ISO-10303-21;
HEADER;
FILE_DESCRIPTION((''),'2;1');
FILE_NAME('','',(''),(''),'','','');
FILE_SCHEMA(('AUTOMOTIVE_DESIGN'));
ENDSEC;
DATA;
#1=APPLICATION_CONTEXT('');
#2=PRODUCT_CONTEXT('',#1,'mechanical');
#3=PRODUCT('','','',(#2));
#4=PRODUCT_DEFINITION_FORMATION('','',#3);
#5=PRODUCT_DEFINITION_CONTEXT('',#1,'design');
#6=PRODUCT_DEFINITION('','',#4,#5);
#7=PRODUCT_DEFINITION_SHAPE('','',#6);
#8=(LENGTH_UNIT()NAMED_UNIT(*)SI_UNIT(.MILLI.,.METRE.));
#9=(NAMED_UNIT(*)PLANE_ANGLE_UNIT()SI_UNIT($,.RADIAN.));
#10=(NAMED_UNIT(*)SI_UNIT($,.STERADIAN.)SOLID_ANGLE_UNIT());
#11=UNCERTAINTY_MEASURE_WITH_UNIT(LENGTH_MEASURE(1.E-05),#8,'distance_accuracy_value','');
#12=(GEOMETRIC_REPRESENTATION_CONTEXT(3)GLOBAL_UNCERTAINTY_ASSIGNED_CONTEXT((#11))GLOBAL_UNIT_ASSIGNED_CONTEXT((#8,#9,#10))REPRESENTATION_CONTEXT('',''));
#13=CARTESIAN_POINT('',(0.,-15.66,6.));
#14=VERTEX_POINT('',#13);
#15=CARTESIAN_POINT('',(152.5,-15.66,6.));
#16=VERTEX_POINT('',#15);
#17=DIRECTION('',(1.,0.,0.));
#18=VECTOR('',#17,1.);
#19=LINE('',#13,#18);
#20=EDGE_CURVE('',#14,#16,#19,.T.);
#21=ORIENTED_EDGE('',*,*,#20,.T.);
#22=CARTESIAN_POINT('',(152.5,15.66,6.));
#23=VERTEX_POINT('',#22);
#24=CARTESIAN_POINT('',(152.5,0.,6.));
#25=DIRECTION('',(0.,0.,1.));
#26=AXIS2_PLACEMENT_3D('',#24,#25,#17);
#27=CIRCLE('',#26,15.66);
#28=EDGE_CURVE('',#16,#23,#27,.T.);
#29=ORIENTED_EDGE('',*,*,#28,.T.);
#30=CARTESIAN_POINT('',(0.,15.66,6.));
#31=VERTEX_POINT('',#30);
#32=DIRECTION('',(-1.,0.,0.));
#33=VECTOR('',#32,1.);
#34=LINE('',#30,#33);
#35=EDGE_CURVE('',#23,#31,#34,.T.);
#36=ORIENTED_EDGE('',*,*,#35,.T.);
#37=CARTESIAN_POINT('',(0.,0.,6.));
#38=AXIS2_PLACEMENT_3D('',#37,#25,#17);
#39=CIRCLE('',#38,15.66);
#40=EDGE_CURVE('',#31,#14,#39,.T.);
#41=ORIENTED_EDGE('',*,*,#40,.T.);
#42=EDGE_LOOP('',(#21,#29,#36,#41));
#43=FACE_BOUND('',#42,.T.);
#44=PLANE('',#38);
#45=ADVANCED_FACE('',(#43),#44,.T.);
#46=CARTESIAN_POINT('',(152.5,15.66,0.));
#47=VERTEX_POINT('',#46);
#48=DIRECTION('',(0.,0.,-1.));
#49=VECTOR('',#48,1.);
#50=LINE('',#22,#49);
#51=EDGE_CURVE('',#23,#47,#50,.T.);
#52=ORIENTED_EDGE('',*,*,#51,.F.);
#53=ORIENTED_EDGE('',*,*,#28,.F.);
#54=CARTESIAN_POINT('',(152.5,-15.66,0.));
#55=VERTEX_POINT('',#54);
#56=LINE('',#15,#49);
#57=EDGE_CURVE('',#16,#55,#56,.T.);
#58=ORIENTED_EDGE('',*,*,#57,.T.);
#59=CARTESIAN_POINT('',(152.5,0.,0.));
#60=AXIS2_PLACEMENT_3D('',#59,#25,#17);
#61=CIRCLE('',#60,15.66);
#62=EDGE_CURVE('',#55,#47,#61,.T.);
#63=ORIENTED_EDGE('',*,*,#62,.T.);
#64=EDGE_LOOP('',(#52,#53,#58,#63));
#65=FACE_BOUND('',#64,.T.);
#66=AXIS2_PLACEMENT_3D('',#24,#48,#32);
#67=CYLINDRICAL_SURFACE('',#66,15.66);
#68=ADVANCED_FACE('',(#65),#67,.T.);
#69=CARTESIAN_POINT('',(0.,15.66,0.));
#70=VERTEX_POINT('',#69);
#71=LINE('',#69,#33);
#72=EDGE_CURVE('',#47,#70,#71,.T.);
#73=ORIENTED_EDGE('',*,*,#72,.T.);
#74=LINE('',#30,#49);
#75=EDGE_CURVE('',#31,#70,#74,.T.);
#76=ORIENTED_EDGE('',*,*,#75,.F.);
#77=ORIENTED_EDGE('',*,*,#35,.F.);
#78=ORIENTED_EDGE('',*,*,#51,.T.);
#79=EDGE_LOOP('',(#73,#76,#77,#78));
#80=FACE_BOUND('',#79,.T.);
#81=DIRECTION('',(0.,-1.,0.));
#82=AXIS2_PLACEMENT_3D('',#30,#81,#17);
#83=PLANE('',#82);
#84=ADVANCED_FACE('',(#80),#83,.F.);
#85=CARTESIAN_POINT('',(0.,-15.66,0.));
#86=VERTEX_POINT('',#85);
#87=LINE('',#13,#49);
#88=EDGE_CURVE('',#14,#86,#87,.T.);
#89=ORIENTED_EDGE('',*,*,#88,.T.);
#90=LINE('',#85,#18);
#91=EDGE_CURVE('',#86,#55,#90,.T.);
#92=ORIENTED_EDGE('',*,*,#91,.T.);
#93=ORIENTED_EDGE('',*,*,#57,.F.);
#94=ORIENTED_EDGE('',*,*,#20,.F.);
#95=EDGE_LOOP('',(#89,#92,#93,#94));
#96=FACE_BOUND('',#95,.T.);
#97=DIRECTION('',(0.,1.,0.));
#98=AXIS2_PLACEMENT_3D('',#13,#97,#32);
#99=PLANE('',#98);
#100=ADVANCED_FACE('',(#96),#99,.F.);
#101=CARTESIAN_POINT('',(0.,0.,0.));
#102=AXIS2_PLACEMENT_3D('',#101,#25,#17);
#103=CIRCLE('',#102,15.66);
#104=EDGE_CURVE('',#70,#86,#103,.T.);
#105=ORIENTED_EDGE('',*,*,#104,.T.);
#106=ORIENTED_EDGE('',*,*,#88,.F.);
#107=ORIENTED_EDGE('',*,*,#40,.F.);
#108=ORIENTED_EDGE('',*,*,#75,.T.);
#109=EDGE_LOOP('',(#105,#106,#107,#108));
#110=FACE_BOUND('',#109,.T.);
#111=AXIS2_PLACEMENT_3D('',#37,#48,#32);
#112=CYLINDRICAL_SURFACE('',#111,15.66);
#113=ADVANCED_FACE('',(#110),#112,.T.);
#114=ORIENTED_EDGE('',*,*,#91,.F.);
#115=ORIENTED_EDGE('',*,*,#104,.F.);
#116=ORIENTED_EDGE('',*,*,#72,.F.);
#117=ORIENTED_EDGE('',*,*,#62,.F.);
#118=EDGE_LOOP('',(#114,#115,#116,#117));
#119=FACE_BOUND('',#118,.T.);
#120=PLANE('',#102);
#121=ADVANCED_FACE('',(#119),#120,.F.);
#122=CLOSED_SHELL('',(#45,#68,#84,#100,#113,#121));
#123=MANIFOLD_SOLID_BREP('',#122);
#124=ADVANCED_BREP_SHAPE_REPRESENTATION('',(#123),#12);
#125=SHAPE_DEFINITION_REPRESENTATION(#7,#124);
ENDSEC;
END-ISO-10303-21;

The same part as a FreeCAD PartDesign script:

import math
import FreeCAD as App
import Part
import Sketcher
from FreeCAD import Vector
Q = App.Units.Quantity

doc = App.newDocument("Part")
body = doc.addObject("PartDesign::Body", "Body")

sketch1 = doc.addObject("Sketcher::SketchObject", "Sketch")
body.addObject(sketch1)
sketch1.AttachmentSupport = (doc.XY_Plane, [""])
sketch1.MapMode = "FlatFace"
sketch1.addGeometry(Part.LineSegment(Vector(152, 16, 0), Vector(0, 16, 0)), False)
sketch1.addGeometry(Part.ArcOfCircle(Part.Circle(Vector(0, 0, 0), Vector(0, 0, 1), 16), math.radians(90), math.radians(270)), False)
sketch1.addGeometry(Part.LineSegment(Vector(0, -16, 0), Vector(152, -16, 0)), False)
sketch1.addGeometry(Part.ArcOfCircle(Part.Circle(Vector(152, 0, 0), Vector(0, 0, 1), 16), math.radians(-90), math.radians(90)), False)
sketch1.addConstraint(Sketcher.Constraint("Tangent", 0, 2, 1, 1))
sketch1.addConstraint(Sketcher.Constraint("Tangent", 1, 2, 2, 1))
sketch1.addConstraint(Sketcher.Constraint("Tangent", 2, 2, 3, 1))
sketch1.addConstraint(Sketcher.Constraint("Tangent", 3, 2, 0, 1))
sketch1.addConstraint(Sketcher.Constraint("Horizontal", 0))
sketch1.addConstraint(Sketcher.Constraint("Horizontal", 2))
sketch1.addConstraint(Sketcher.Constraint("Coincident", 1, 3, -1, 1))
sketch1.addConstraint(Sketcher.Constraint("Radius", 1, Q("15.66 mm")))
sketch1.addConstraint(Sketcher.Constraint("DistanceX", 0, 2, 0, 1, Q("152.5 mm")))
pad1 = doc.addObject("PartDesign::Pad", "Pad")
body.addObject(pad1)
pad1.Profile = sketch1
pad1.Length = 6

doc.recompute()
